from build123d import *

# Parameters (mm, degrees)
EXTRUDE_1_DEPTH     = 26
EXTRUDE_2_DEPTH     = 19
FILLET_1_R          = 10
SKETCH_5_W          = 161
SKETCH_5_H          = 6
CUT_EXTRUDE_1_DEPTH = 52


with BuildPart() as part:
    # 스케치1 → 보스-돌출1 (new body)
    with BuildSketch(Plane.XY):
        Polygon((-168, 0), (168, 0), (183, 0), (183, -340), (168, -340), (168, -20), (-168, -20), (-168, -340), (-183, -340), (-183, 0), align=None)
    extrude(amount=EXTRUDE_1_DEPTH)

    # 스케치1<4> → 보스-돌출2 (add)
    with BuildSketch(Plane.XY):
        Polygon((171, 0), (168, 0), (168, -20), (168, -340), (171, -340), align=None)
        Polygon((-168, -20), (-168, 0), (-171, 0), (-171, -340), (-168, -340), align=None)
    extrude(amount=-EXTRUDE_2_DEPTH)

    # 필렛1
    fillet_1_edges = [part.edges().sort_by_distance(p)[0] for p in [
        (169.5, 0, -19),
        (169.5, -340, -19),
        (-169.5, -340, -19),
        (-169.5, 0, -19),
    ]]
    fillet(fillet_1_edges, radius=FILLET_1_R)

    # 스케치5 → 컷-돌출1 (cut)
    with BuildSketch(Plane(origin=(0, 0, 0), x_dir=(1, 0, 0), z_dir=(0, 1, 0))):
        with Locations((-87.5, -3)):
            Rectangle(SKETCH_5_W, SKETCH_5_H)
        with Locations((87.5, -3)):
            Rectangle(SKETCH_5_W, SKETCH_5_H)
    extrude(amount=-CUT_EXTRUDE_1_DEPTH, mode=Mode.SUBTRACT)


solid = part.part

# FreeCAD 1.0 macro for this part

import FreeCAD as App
import Part
import Sketcher
Q = App.Units.Quantity


def edges_at(feature, points):
    """Names of the edges that pass closest to the given points."""
    edges = feature.Shape.Edges
    near = lambda p: min(range(len(edges)), key=lambda i: edges[i].distToShape(Part.Vertex(*p))[0])
    return sorted({f"Edge{near(p) + 1}" for p in points})


def add_polygon(sketch, points):
    """Adds a closed chain of lines whose ends are joined by coincident constraints."""
    first, n = sketch.GeometryCount, len(points)
    for a, b in zip(points, points[1:] + points[:1]):
        sketch.addGeometry(Part.LineSegment(App.Vector(*a, 0), App.Vector(*b, 0)), False)
    for i in range(n):
        sketch.addConstraint(Sketcher.Constraint("Coincident", first + i, 2, first + (i + 1) % n, 1))

doc = App.newDocument("Part")
params = doc.addObject("Spreadsheet::Sheet", "Params")
for row, (alias, value) in enumerate([
    ("sketch1_width", "366 mm"),
    ("sketch1_width2", "15 mm"),
    ("sketch1_height", "340 mm"),
    ("sketch1_height2", "320 mm"),
    ("pad1_length", "26 mm"),
    ("sketch2_width", "3 mm"),
    ("sketch2_height", "340 mm"),
    ("pad2_length", "19 mm"),
    ("fillet_radius", "10 mm"),
    ("sketch3_width", "161 mm"),
    ("sketch3_height", "6 mm"),
    ("pocket1_length", "52 mm"),
], start=1):
    params.set(f"A{row}", alias)
    params.set(f"B{row}", "=" + value)
    params.setAlias(f"B{row}", alias)

body = doc.addObject("PartDesign::Body", "Body")

sketch1 = body.newObject("Sketcher::SketchObject", "Sketch")
sketch1.AttachmentSupport = (doc.getObject("XY_Plane"), [""])
sketch1.MapMode = "FlatFace"
add_polygon(sketch1, [(183, 0), (-183, 0), (-183, -340), (-168, -340), (-168, -20), (168, -20), (168, -340), (183, -340)])
sketch1.addConstraint([
    Sketcher.Constraint("Horizontal", 0),
    Sketcher.Constraint("Vertical", 1),
    Sketcher.Constraint("Horizontal", 2),
    Sketcher.Constraint("Vertical", 3),
    Sketcher.Constraint("Horizontal", 4),
    Sketcher.Constraint("Vertical", 5),
    Sketcher.Constraint("Horizontal", 6),
    Sketcher.Constraint("Vertical", 7),
    Sketcher.Constraint("Symmetric", 0, 2, 7, 2, -1, 1),
    Sketcher.Constraint("Symmetric", 2, 2, 5, 2, -2),
    Sketcher.Constraint("DistanceX", 0, 2, 0, 1, Q("366 mm")),
    Sketcher.Constraint("DistanceX", 2, 1, 2, 2, Q("15 mm")),
    Sketcher.Constraint("DistanceY", 1, 2, 1, 1, Q("340 mm")),
    Sketcher.Constraint("DistanceY", 3, 1, 3, 2, Q("320 mm")),
])
sketch1.setExpression("Constraints[18]", "Params.sketch1_width")
sketch1.setExpression("Constraints[19]", "Params.sketch1_width2")
sketch1.setExpression("Constraints[20]", "Params.sketch1_height")
sketch1.setExpression("Constraints[21]", "Params.sketch1_height2")
pad1 = body.newObject("PartDesign::Pad", "Pad")
pad1.Profile = sketch1
pad1.setExpression("Length", "Params.pad1_length")

sketch2 = body.newObject("Sketcher::SketchObject", "Sketch001")
sketch2.AttachmentSupport = (doc.getObject("XY_Plane"), [""])
sketch2.MapMode = "FlatFace"
add_polygon(sketch2, [(171, 0), (168, 0), (168, -340), (171, -340)])
add_polygon(sketch2, [(-168, 0), (-171, 0), (-171, -340), (-168, -340)])
sketch2.addConstraint([
    Sketcher.Constraint("Horizontal", 0),
    Sketcher.Constraint("Vertical", 1),
    Sketcher.Constraint("Horizontal", 2),
    Sketcher.Constraint("Vertical", 3),
    Sketcher.Constraint("Horizontal", 4),
    Sketcher.Constraint("Vertical", 5),
    Sketcher.Constraint("Horizontal", 6),
    Sketcher.Constraint("Vertical", 7),
    Sketcher.Constraint("Symmetric", 3, 2, 4, 2, -1, 1),
    Sketcher.Constraint("Symmetric", 1, 2, 6, 2, -2),
    Sketcher.Constraint("PointOnObject", 0, 2, -1),
    Sketcher.Constraint("DistanceX", 0, 2, 0, 1, Q("3 mm")),
    Sketcher.Constraint("DistanceY", 1, 2, 1, 1, Q("340 mm")),
    Sketcher.Constraint("DistanceX", -1, 1, 0, 2, Q("168 mm")),
])
sketch2.setExpression("Constraints[19]", "Params.sketch2_width")
sketch2.setExpression("Constraints[20]", "Params.sketch2_height")
pad2 = body.newObject("PartDesign::Pad", "Pad001")
pad2.Profile = sketch2
pad2.setExpression("Length", "Params.pad2_length")
pad2.Reversed = True
doc.recompute()

fillet = body.newObject("PartDesign::Fillet", "Fillet")
fillet.Base = (pad2, edges_at(pad2, [
    (169.5, 0, -19),
    (169.5, -340, -19),
    (-169.5, -340, -19),
    (-169.5, 0, -19),
]))
fillet.setExpression("Radius", "Params.fillet_radius")

sketch3 = body.newObject("Sketcher::SketchObject", "Sketch002")
sketch3.AttachmentSupport = (doc.getObject("XZ_Plane"), [""])
sketch3.MapMode = "FlatFace"
add_polygon(sketch3, [(-168, 0), (-168, 6), (-7, 6), (-7, 0)])
add_polygon(sketch3, [(7, 0), (7, 6), (168, 6), (168, 0)])
sketch3.addConstraint([
    Sketcher.Constraint("Vertical", 0),
    Sketcher.Constraint("Horizontal", 1),
    Sketcher.Constraint("Vertical", 2),
    Sketcher.Constraint("Horizontal", 3),
    Sketcher.Constraint("Vertical", 4),
    Sketcher.Constraint("Horizontal", 5),
    Sketcher.Constraint("Vertical", 6),
    Sketcher.Constraint("Horizontal", 7),
    Sketcher.Constraint("Symmetric", 3, 2, 6, 2, -1, 1),
    Sketcher.Constraint("Symmetric", 1, 2, 4, 2, -2),
    Sketcher.Constraint("PointOnObject", 2, 2, -1),
    Sketcher.Constraint("DistanceX", 1, 1, 1, 2, Q("161 mm")),
    Sketcher.Constraint("DistanceY", 0, 1, 0, 2, Q("6 mm")),
    Sketcher.Constraint("DistanceX", 0, 2, -1, 1, Q("168 mm")),
])
sketch3.setExpression("Constraints[19]", "Params.sketch3_width")
sketch3.setExpression("Constraints[20]", "Params.sketch3_height")
pocket1 = body.newObject("PartDesign::Pocket", "Pocket")
pocket1.Profile = sketch3
pocket1.setExpression("Length", "Params.pocket1_length")
pocket1.Reversed = True

doc.recompute()
